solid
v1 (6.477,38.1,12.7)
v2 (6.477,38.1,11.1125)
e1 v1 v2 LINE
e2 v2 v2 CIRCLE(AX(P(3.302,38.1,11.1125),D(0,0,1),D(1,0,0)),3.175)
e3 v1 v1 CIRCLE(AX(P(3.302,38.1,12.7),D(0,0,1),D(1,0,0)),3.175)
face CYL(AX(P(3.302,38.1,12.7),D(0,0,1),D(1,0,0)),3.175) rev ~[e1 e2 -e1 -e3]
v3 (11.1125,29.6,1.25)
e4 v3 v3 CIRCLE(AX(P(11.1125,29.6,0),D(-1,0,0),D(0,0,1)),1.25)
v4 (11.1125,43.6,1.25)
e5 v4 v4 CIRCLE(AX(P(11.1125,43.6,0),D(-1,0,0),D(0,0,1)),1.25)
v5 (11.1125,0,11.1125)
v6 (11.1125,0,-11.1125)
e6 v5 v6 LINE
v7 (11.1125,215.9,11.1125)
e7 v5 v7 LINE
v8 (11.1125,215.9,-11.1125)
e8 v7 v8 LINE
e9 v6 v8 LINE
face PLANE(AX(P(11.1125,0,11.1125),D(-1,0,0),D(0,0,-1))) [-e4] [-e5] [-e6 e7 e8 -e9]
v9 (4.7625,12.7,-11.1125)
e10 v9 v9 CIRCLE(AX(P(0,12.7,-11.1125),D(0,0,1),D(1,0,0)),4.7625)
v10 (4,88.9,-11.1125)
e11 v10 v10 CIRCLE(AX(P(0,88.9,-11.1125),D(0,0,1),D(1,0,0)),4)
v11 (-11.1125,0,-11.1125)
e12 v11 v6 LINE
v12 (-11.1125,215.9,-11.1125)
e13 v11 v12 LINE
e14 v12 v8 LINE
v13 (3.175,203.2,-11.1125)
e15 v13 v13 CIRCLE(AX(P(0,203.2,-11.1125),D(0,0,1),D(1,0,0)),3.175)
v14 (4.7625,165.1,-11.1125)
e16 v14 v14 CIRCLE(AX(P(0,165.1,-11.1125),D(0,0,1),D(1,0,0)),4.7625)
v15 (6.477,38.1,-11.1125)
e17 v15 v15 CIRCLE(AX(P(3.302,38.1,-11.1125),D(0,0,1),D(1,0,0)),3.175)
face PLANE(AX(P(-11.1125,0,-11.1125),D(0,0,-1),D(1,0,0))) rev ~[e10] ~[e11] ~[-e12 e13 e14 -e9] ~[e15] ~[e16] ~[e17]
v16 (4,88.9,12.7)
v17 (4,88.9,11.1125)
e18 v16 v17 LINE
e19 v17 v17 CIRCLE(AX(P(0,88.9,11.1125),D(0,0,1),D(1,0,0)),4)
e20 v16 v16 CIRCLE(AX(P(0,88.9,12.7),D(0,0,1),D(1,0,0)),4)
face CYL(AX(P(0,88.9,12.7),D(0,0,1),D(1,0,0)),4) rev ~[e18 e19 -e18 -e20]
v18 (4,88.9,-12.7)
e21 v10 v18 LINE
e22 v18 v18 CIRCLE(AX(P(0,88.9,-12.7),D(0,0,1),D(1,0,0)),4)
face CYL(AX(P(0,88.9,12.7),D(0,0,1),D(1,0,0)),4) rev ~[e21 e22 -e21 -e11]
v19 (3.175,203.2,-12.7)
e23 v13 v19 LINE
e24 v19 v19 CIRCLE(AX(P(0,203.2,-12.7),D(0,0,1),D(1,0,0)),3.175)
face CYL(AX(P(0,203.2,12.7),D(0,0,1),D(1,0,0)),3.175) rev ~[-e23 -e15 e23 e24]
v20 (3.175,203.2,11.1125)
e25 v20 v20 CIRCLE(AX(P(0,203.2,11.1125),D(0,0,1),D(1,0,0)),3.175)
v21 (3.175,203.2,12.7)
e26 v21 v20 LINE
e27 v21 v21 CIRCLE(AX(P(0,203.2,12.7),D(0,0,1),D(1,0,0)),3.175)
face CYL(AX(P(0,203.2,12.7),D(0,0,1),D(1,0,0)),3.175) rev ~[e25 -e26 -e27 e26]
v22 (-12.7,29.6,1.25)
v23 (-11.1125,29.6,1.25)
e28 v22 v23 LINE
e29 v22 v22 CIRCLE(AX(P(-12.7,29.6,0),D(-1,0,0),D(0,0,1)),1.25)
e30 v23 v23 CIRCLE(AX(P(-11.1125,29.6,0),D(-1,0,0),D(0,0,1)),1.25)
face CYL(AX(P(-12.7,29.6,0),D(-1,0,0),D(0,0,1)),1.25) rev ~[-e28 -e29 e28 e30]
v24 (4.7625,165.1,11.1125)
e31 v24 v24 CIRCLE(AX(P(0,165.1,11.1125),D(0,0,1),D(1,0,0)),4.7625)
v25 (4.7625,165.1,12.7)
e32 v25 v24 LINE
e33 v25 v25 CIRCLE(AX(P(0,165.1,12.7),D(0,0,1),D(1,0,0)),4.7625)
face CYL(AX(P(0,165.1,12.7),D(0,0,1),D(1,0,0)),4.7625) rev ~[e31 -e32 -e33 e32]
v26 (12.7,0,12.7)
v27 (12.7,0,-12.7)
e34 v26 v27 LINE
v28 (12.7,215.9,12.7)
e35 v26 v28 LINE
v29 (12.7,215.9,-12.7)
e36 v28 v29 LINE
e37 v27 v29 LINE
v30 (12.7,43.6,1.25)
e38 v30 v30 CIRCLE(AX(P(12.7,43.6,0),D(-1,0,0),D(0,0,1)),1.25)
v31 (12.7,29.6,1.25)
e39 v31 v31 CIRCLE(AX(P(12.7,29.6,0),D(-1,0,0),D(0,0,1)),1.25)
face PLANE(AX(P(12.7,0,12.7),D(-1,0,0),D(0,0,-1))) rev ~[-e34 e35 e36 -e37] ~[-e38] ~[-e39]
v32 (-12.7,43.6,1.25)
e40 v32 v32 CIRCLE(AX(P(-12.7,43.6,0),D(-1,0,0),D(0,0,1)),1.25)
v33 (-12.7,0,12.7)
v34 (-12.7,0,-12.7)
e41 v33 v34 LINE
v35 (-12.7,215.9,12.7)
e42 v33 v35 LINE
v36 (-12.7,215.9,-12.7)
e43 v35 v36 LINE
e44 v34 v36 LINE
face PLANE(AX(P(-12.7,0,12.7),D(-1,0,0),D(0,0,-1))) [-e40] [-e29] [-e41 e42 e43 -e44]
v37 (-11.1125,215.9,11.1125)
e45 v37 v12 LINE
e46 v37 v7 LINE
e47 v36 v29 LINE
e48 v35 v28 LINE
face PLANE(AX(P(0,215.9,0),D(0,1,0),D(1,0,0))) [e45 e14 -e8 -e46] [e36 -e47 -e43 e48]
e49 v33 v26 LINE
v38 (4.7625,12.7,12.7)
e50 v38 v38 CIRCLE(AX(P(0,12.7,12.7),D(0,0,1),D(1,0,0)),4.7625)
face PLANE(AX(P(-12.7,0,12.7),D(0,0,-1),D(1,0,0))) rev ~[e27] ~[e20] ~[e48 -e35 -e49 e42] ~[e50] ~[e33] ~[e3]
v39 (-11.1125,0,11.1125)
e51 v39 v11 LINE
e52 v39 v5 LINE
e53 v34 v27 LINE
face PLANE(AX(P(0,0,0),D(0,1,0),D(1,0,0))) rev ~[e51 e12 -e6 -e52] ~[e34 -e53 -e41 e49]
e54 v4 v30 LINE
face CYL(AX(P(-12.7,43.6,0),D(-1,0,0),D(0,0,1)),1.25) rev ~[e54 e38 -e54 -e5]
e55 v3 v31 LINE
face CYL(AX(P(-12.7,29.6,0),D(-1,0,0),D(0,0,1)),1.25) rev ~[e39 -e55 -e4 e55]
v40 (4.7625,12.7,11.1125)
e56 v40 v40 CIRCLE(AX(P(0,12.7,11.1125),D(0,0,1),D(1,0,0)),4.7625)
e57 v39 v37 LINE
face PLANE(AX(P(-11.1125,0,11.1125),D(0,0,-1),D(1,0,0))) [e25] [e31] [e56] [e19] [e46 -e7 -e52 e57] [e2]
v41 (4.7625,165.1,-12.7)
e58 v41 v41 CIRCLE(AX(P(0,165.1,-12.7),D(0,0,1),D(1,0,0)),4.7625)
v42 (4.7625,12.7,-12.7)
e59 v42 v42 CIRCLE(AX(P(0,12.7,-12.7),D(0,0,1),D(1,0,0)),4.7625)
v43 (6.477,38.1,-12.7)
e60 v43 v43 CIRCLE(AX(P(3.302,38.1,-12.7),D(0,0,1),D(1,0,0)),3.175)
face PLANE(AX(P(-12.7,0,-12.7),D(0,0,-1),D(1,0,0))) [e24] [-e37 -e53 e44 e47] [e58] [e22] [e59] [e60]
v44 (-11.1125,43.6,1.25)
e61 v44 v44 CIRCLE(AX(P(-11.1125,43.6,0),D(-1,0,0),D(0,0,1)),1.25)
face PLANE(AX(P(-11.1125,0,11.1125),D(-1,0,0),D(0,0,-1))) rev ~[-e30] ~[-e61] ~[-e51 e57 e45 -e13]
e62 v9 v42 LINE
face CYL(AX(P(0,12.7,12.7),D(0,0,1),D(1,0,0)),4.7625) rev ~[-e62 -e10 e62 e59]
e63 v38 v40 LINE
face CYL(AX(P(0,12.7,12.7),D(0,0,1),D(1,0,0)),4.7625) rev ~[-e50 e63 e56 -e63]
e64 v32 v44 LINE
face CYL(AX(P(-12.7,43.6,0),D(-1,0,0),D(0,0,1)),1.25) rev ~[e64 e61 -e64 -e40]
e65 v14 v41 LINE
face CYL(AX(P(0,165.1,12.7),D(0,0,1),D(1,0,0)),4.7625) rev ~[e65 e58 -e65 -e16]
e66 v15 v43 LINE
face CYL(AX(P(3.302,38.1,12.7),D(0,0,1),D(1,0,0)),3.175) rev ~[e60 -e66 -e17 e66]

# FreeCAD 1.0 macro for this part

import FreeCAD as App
import Part
import Sketcher

V = App.Vector
Q = App.Units.Quantity

doc = App.newDocument("Part")
body = doc.addObject("PartDesign::Body", "Body")

# Sketch on XZ plane
sketch1 = body.newObject("Sketcher::SketchObject", "Sketch")
sketch1.AttachmentSupport = (doc.getObject("XZ_Plane"), [""])
sketch1.MapMode = "FlatFace"
sketch1.addGeometry([
    Part.LineSegment(V(-12.7, -12.7, 0), V(-12.7, 12.7, 0)),  # 0
    Part.LineSegment(V(-12.7, 12.7, 0), V(12.7, 12.7, 0)),  # 1
    Part.LineSegment(V(12.7, 12.7, 0), V(12.7, -12.7, 0)),  # 2
    Part.LineSegment(V(12.7, -12.7, 0), V(-12.7, -12.7, 0)),  # 3
    Part.LineSegment(V(11.1125, 11.1125, 0), V(-11.1125, 11.1125, 0)),  # 4
    Part.LineSegment(V(-11.1125, 11.1125, 0), V(-11.1125, -11.1125, 0)),  # 5
    Part.LineSegment(V(-11.1125, -11.1125, 0), V(11.1125, -11.1125, 0)),  # 6
    Part.LineSegment(V(11.1125, -11.1125, 0), V(11.1125, 11.1125, 0)),  # 7
], False)
sketch1.addConstraint([
    Sketcher.Constraint("Coincident", 0, 2, 1, 1),
    Sketcher.Constraint("Coincident", 1, 2, 2, 1),
    Sketcher.Constraint("Coincident", 2, 2, 3, 1),
    Sketcher.Constraint("Coincident", 3, 2, 0, 1),
    Sketcher.Constraint("Coincident", 4, 2, 5, 1),
    Sketcher.Constraint("Coincident", 5, 2, 6, 1),
    Sketcher.Constraint("Coincident", 6, 2, 7, 1),
    Sketcher.Constraint("Coincident", 7, 2, 4, 1),
    Sketcher.Constraint("Vertical", 0),
    Sketcher.Constraint("Horizontal", 1),
    Sketcher.Constraint("Vertical", 2),
    Sketcher.Constraint("Horizontal", 3),
    Sketcher.Constraint("Horizontal", 4),
    Sketcher.Constraint("Vertical", 5),
    Sketcher.Constraint("Horizontal", 6),
    Sketcher.Constraint("Vertical", 7),
    Sketcher.Constraint("Symmetric", 0, 2, 2, 2, -1, 1),
    Sketcher.Constraint("Symmetric", 4, 2, 6, 2, -1, 1),
    Sketcher.Constraint("Equal", 3, 0),
    Sketcher.Constraint("Equal", 6, 5),
    Sketcher.Constraint("DistanceX", 1, 1, 1, 2, Q("1 in")),
    Sketcher.Constraint("DistanceX", 4, 2, 4, 1, Q("0.875 in")),
])
pad1 = body.newObject("PartDesign::Pad", "Pad")
pad1.Profile = sketch1
pad1.Length = Q("8.5 in")
pad1.Reversed = True

# Sketch on XY plane
sketch2 = body.newObject("Sketcher::SketchObject", "Sketch001")
sketch2.AttachmentSupport = (doc.getObject("XY_Plane"), [""])
sketch2.MapMode = "FlatFace"
sketch2.AttachmentOffset = App.Placement(V(0, 0, 0.5 * 25.4), App.Rotation())
sketch2.addGeometry([
    Part.Circle(V(0, 88.9, 0), V(0, 0, 1), 4),
    Part.Circle(V(0, 165.1, 0), V(0, 0, 1), 4.7625),
    Part.Circle(V(0, 12.7, 0), V(0, 0, 1), 4.7625),
    Part.Circle(V(0, 203.2, 0), V(0, 0, 1), 3.175),
], False)
sketch2.addConstraint([
    Sketcher.Constraint("Equal", 1, 2),
    Sketcher.Constraint("PointOnObject", 0, 3, -2),
    Sketcher.Constraint("PointOnObject", 1, 3, -2),
    Sketcher.Constraint("PointOnObject", 2, 3, -2),
    Sketcher.Constraint("PointOnObject", 3, 3, -2),
    Sketcher.Constraint("Diameter", 3, Q("0.25 in")),
    Sketcher.Constraint("Diameter", 1, Q("0.375 in")),
    Sketcher.Constraint("DistanceY", -1, 1, 3, 3, Q("8 in")),
    Sketcher.Constraint("DistanceY", 0, 3, 1, 3, Q("3 in")),
    Sketcher.Constraint("DistanceY", 2, 3, 0, 3, Q("3 in")),
    Sketcher.Constraint("DistanceY", -1, 1, 0, 3, Q("3.5 in")),
    Sketcher.Constraint("Diameter", 0, Q("8 mm")),
])
pocket1 = body.newObject("PartDesign::Pocket", "Pocket")
pocket1.Profile = sketch2
pocket1.Type = "ThroughAll"

# Sketch on XY plane
sketch3 = body.newObject("Sketcher::SketchObject", "Sketch002")
sketch3.AttachmentSupport = (doc.getObject("XY_Plane"), [""])
sketch3.MapMode = "FlatFace"
sketch3.AttachmentOffset = App.Placement(V(0, 0, 0.5 * 25.4), App.Rotation())
sketch3.addGeometry(Part.Circle(V(3.302, 38.1, 0), V(0, 0, 1), 3.175), False)
sketch3.addConstraint([
    Sketcher.Constraint("Diameter", 0, Q("0.25 in")),
    Sketcher.Constraint("DistanceY", -1, 1, 0, 3, Q("1.5 in")),
    Sketcher.Constraint("DistanceX", -1, 1, 0, 3, Q("0.13 in")),
])
pocket2 = body.newObject("PartDesign::Pocket", "Pocket001")
pocket2.Profile = sketch3
pocket2.Type = "ThroughAll"

# Sketch on YZ plane
sketch4 = body.newObject("Sketcher::SketchObject", "Sketch003")
sketch4.AttachmentSupport = (doc.getObject("YZ_Plane"), [""])
sketch4.MapMode = "FlatFace"
sketch4.AttachmentOffset = App.Placement(V(0, 0, -0.5 * 25.4), App.Rotation())
sketch4.addGeometry([
    Part.Circle(V(43.6, 0, 0), V(0, 0, 1), 1.25),
    Part.Circle(V(29.6, 0, 0), V(0, 0, 1), 1.25),
], False)
sketch4.addConstraint([
    Sketcher.Constraint("Equal", 0, 1),
    Sketcher.Constraint("PointOnObject", 0, 3, -1),
    Sketcher.Constraint("PointOnObject", 1, 3, -1),
    Sketcher.Constraint("Diameter", 0, Q("2.5 mm")),
    Sketcher.Constraint("DistanceX", -1, 1, 0, 3, Q("43.6 mm")),
    Sketcher.Constraint("DistanceX", -1, 1, 1, 3, Q("29.6 mm")),
])
pocket3 = body.newObject("PartDesign::Pocket", "Pocket002")
pocket3.Profile = sketch4
pocket3.Type = "ThroughAll"
pocket3.Reversed = True

doc.recompute()
